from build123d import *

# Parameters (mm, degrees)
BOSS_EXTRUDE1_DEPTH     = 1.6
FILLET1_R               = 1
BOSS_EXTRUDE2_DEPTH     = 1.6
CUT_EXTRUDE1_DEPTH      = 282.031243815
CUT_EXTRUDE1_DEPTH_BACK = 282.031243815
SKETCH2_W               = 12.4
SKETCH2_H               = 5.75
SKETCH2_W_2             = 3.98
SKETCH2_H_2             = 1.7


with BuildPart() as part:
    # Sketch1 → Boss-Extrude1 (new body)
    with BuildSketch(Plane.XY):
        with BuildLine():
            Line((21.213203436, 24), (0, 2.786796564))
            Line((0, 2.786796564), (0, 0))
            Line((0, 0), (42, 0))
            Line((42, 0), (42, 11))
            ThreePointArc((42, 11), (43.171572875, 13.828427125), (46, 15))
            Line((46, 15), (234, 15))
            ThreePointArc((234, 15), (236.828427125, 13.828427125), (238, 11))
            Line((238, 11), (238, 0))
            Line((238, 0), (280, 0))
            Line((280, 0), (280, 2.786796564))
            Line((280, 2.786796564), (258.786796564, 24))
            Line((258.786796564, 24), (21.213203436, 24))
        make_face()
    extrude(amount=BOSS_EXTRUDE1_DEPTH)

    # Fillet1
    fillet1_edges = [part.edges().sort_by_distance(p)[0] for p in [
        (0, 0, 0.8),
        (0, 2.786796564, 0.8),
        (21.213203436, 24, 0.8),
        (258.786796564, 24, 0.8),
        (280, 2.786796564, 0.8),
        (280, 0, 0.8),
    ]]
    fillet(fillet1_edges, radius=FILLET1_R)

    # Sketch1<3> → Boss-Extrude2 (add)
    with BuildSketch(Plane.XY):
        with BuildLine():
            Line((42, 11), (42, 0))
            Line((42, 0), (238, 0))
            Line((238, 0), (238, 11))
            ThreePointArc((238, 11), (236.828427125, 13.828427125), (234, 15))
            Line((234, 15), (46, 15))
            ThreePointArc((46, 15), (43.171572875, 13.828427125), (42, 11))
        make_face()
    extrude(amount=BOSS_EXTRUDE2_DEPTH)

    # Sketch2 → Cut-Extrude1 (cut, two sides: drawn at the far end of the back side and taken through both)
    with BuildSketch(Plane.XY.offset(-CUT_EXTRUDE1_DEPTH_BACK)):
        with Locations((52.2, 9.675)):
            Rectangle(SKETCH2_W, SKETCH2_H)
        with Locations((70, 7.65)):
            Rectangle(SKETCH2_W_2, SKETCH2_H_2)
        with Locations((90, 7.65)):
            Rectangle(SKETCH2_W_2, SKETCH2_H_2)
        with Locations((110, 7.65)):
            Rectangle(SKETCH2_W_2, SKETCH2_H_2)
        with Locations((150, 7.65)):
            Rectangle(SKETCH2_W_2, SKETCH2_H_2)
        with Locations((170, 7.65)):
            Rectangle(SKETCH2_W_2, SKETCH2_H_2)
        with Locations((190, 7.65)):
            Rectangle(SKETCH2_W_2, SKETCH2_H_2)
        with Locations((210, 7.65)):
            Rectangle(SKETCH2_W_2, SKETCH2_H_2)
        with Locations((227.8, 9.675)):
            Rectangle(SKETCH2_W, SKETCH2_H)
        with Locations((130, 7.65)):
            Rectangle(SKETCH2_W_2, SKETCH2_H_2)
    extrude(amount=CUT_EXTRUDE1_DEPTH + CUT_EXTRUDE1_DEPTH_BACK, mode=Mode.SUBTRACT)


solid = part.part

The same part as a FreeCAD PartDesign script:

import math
import FreeCAD as App
import Part
import Sketcher

V = App.Vector
Q = App.Units.Quantity


def edges_at(feature, points):
    """Names of the edges that pass closest to the given points."""
    edges = feature.Shape.Edges
    near = lambda p: min(range(len(edges)), key=lambda i: edges[i].distToShape(Part.Vertex(*p))[0])
    return sorted({f"Edge{near(p) + 1}" for p in points})

doc = App.newDocument("Part")
params = doc.addObject("Spreadsheet::Sheet", "Params")
for row, (alias, value) in enumerate([
    ("sketch1_radius", "4 mm"),
    ("sketch1_width", "42 mm"),
    ("sketch1_width2", "188 mm"),
    ("sketch1_height", "11 mm"),
    ("sketch1_length", "30 mm"),
    ("pad1_length", "1.6 mm"),
    ("fillet_radius", "1 mm"),
    ("sketch2_radius", "4 mm"),
    ("sketch2_width", "196 mm"),
    ("sketch2_height", "11 mm"),
    ("pad2_length", "1.6 mm"),
    ("sketch3_width", "12.4 mm"),
    ("sketch3_height", "1.7 mm"),
    ("sketch3_width2", "3.98 mm"),
    ("sketch3_height2", "5.75 mm"),
], start=1):
    params.set(f"A{row}", alias)
    params.set(f"B{row}", "=" + value)
    params.setAlias(f"B{row}", alias)

body = doc.addObject("PartDesign::Body", "Body")

sketch1 = body.newObject("Sketcher::SketchObject", "Sketch")
sketch1.AttachmentSupport = (doc.getObject("XY_Plane"), [""])
sketch1.MapMode = "FlatFace"
sketch1.addGeometry(Part.LineSegment(V(21.2, 24, 0), V(0, 2.8, 0)), False)
sketch1.addGeometry(Part.LineSegment(V(0, 2.8, 0), V(0, 0, 0)), False)
sketch1.addGeometry(Part.LineSegment(V(0, 0, 0), V(42, 0, 0)), False)
sketch1.addGeometry(Part.LineSegment(V(42, 0, 0), V(42, 11, 0)), False)
sketch1.addGeometry(Part.ArcOfCircle(Part.Circle(V(46, 11, 0), V(0, 0, 1), 4), math.radians(90), math.radians(180)), False)
sketch1.addGeometry(Part.LineSegment(V(46, 15, 0), V(234, 15, 0)), False)
sketch1.addGeometry(Part.ArcOfCircle(Part.Circle(V(234, 11, 0), V(0, 0, 1), 4), math.radians(0), math.radians(90)), False)
sketch1.addGeometry(Part.LineSegment(V(238, 11, 0), V(238, 0, 0)), False)
sketch1.addGeometry(Part.LineSegment(V(238, 0, 0), V(280, 0, 0)), False)
sketch1.addGeometry(Part.LineSegment(V(280, 0, 0), V(280, 2.8, 0)), False)
sketch1.addGeometry(Part.LineSegment(V(280, 2.8, 0), V(258.8, 24, 0)), False)
sketch1.addGeometry(Part.LineSegment(V(258.8, 24, 0), V(21.2, 24, 0)), False)
sketch1.addConstraint(Sketcher.Constraint("Coincident", 0, 2, 1, 1))
sketch1.addConstraint(Sketcher.Constraint("Coincident", 1, 2, 2, 1))
sketch1.addConstraint(Sketcher.Constraint("Coincident", 2, 2, 3, 1))
sketch1.addConstraint(Sketcher.Constraint("Tangent", 3, 2, 4, 2))
sketch1.addConstraint(Sketcher.Constraint("Tangent", 4, 1, 5, 1))
sketch1.addConstraint(Sketcher.Constraint("Tangent", 5, 2, 6, 2))
sketch1.addConstraint(Sketcher.Constraint("Tangent", 6, 1, 7, 1))
sketch1.addConstraint(Sketcher.Constraint("Coincident", 7, 2, 8, 1))
sketch1.addConstraint(Sketcher.Constraint("Coincident", 8, 2, 9, 1))
sketch1.addConstraint(Sketcher.Constraint("Coincident", 9, 2, 10, 1))
sketch1.addConstraint(Sketcher.Constraint("Coincident", 10, 2, 11, 1))
sketch1.addConstraint(Sketcher.Constraint("Coincident", 11, 2, 0, 1))
sketch1.addConstraint(Sketcher.Constraint("Vertical", 1))
sketch1.addConstraint(Sketcher.Constraint("Horizontal", 2))
sketch1.addConstraint(Sketcher.Constraint("Vertical", 3))
sketch1.addConstraint(Sketcher.Constraint("Horizontal", 5))
sketch1.addConstraint(Sketcher.Constraint("Vertical", 7))
sketch1.addConstraint(Sketcher.Constraint("Horizontal", 8))
sketch1.addConstraint(Sketcher.Constraint("Vertical", 9))
sketch1.addConstraint(Sketcher.Constraint("Horizontal", 11))
sketch1.addConstraint(Sketcher.Constraint("Coincident", 1, 2, -1, 1))
sketch1.addConstraint(Sketcher.Constraint("Equal", 4, 6))
sketch1.addConstraint(Sketcher.Constraint("PointOnObject", 7, 2, -1))
sketch1.addConstraint(Sketcher.Constraint("Perpendicular", 0, 10))
sketch1.addConstraint(Sketcher.Constraint("Horizontal", 0, 2, 9, 2))
sketch1.addConstraint(Sketcher.Constraint("Equal", 2, 8))
sketch1.addConstraint(Sketcher.Constraint("Equal", 0, 10))
sketch1.addConstraint(Sketcher.Constraint("Radius", 4, Q("4 mm")))
sketch1.addConstraint(Sketcher.Constraint("DistanceX", 2, 1, 2, 2, Q("42 mm")))
sketch1.addConstraint(Sketcher.Constraint("DistanceX", 5, 1, 5, 2, Q("188 mm")))
sketch1.addConstraint(Sketcher.Constraint("DistanceY", 3, 1, 3, 2, Q("11 mm")))
sketch1.addConstraint(Sketcher.Constraint("Distance", 0, Q("30 mm")))
sketch1.addConstraint(Sketcher.Constraint("DistanceY", -1, 1, 10, 2, Q("24 mm")))
sketch1.setExpression("Constraints[27]", "Params.sketch1_radius")
sketch1.setExpression("Constraints[28]", "Params.sketch1_width")
sketch1.setExpression("Constraints[29]", "Params.sketch1_width2")
sketch1.setExpression("Constraints[30]", "Params.sketch1_height")
sketch1.setExpression("Constraints[31]", "Params.sketch1_length")
pad1 = body.newObject("PartDesign::Pad", "Pad")
pad1.Profile = sketch1
pad1.setExpression("Length", "Params.pad1_length")
doc.recompute()

fillet = body.newObject("PartDesign::Fillet", "Fillet")
fillet.Base = (pad1, edges_at(pad1, [
    (0, 0, 0.8),
    (0, 2.787, 0.8),
    (21.213, 24, 0.8),
    (258.787, 24, 0.8),
    (280, 2.787, 0.8),
    (280, 0, 0.8),
]))
fillet.setExpression("Radius", "Params.fillet_radius")

sketch2 = body.newObject("Sketcher::SketchObject", "Sketch001")
sketch2.AttachmentSupport = (doc.getObject("XY_Plane"), [""])
sketch2.MapMode = "FlatFace"
sketch2.addGeometry(Part.LineSegment(V(42, 11, 0), V(42, 0, 0)), False)
sketch2.addGeometry(Part.LineSegment(V(42, 0, 0), V(238, 0, 0)), False)
sketch2.addGeometry(Part.LineSegment(V(238, 0, 0), V(238, 11, 0)), False)
sketch2.addGeometry(Part.ArcOfCircle(Part.Circle(V(234, 11, 0), V(0, 0, 1), 4), math.radians(0), math.radians(90)), False)
sketch2.addGeometry(Part.LineSegment(V(234, 15, 0), V(46, 15, 0)), False)
sketch2.addGeometry(Part.ArcOfCircle(Part.Circle(V(46, 11, 0), V(0, 0, 1), 4), math.radians(90), math.radians(180)), False)
sketch2.addConstraint(Sketcher.Constraint("Coincident", 0, 2, 1, 1))
sketch2.addConstraint(Sketcher.Constraint("Coincident", 1, 2, 2, 1))
sketch2.addConstraint(Sketcher.Constraint("Tangent", 2, 2, 3, 1))
sketch2.addConstraint(Sketcher.Constraint("Tangent", 3, 2, 4, 1))
sketch2.addConstraint(Sketcher.Constraint("Tangent", 4, 2, 5, 1))
sketch2.addConstraint(Sketcher.Constraint("Tangent", 5, 2, 0, 1))
sketch2.addConstraint(Sketcher.Constraint("Vertical", 0))
sketch2.addConstraint(Sketcher.Constraint("Horizontal", 1))
sketch2.addConstraint(Sketcher.Constraint("Vertical", 2))
sketch2.addConstraint(Sketcher.Constraint("Horizontal", 4))
sketch2.addConstraint(Sketcher.Constraint("Equal", 3, 5))
sketch2.addConstraint(Sketcher.Constraint("PointOnObject", 0, 2, -1))
sketch2.addConstraint(Sketcher.Constraint("Radius", 3, Q("4 mm")))
sketch2.addConstraint(Sketcher.Constraint("DistanceX", 1, 1, 1, 2, Q("196 mm")))
sketch2.addConstraint(Sketcher.Constraint("DistanceY", 0, 2, 0, 1, Q("11 mm")))
sketch2.addConstraint(Sketcher.Constraint("DistanceX", -1, 1, 3, 3, Q("234 mm")))
sketch2.setExpression("Constraints[12]", "Params.sketch2_radius")
sketch2.setExpression("Constraints[13]", "Params.sketch2_width")
sketch2.setExpression("Constraints[14]", "Params.sketch2_height")
pad2 = body.newObject("PartDesign::Pad", "Pad001")
pad2.Profile = sketch2
pad2.setExpression("Length", "Params.pad2_length")

sketch3 = body.newObject("Sketcher::SketchObject", "Sketch002")
sketch3.AttachmentSupport = (doc.getObject("XY_Plane"), [""])
sketch3.MapMode = "FlatFace"
sketch3.addGeometry(Part.LineSegment(V(46, 12.6, 0), V(46, 6.8, 0)), False)
sketch3.addGeometry(Part.LineSegment(V(46, 6.8, 0), V(58.4, 6.8, 0)), False)
sketch3.addGeometry(Part.LineSegment(V(58.4, 6.8, 0), V(58.4, 12.6, 0)), False)
sketch3.addGeometry(Part.LineSegment(V(58.4, 12.6, 0), V(46, 12.6, 0)), False)
sketch3.addGeometry(Part.LineSegment(V(68, 8.5, 0), V(68, 6.8, 0)), False)
sketch3.addGeometry(Part.LineSegment(V(68, 6.8, 0), V(72, 6.8, 0)), False)
sketch3.addGeometry(Part.LineSegment(V(72, 6.8, 0), V(72, 8.5, 0)), False)
sketch3.addGeometry(Part.LineSegment(V(72, 8.5, 0), V(68, 8.5, 0)), False)
sketch3.addGeometry(Part.LineSegment(V(88, 8.5, 0), V(88, 6.8, 0)), False)
sketch3.addGeometry(Part.LineSegment(V(88, 6.8, 0), V(92, 6.8, 0)), False)
sketch3.addGeometry(Part.LineSegment(V(92, 6.8, 0), V(92, 8.5, 0)), False)
sketch3.addGeometry(Part.LineSegment(V(92, 8.5, 0), V(88, 8.5, 0)), False)
sketch3.addGeometry(Part.LineSegment(V(108, 8.5, 0), V(108, 6.8, 0)), False)
sketch3.addGeometry(Part.LineSegment(V(108, 6.8, 0), V(112, 6.8, 0)), False)
sketch3.addGeometry(Part.LineSegment(V(112, 6.8, 0), V(112, 8.5, 0)), False)
sketch3.addGeometry(Part.LineSegment(V(112, 8.5, 0), V(108, 8.5, 0)), False)
sketch3.addGeometry(Part.LineSegment(V(148, 8.5, 0), V(148, 6.8, 0)), False)
sketch3.addGeometry(Part.LineSegment(V(148, 6.8, 0), V(152, 6.8, 0)), False)
sketch3.addGeometry(Part.LineSegment(V(152, 6.8, 0), V(152, 8.5, 0)), False)
sketch3.addGeometry(Part.LineSegment(V(152, 8.5, 0), V(148, 8.5, 0)), False)
sketch3.addGeometry(Part.LineSegment(V(168, 8.5, 0), V(168, 6.8, 0)), False)
sketch3.addGeometry(Part.LineSegment(V(168, 6.8, 0), V(172, 6.8, 0)), False)
sketch3.addGeometry(Part.LineSegment(V(172, 6.8, 0), V(172, 8.5, 0)), False)
sketch3.addGeometry(Part.LineSegment(V(172, 8.5, 0), V(168, 8.5, 0)), False)
sketch3.addGeometry(Part.LineSegment(V(188, 8.5, 0), V(188, 6.8, 0)), False)
sketch3.addGeometry(Part.LineSegment(V(188, 6.8, 0), V(192, 6.8, 0)), False)
sketch3.addGeometry(Part.LineSegment(V(192, 6.8, 0), V(192, 8.5, 0)), False)
sketch3.addGeometry(Part.LineSegment(V(192, 8.5, 0), V(188, 8.5, 0)), False)
sketch3.addGeometry(Part.LineSegment(V(208, 8.5, 0), V(208, 6.8, 0)), False)
sketch3.addGeometry(Part.LineSegment(V(208, 6.8, 0), V(212, 6.8, 0)), False)
sketch3.addGeometry(Part.LineSegment(V(212, 6.8, 0), V(212, 8.5, 0)), False)
sketch3.addGeometry(Part.LineSegment(V(212, 8.5, 0), V(208, 8.5, 0)), False)
sketch3.addGeometry(Part.LineSegment(V(221.6, 12.6, 0), V(221.6, 6.8, 0)), False)
sketch3.addGeometry(Part.LineSegment(V(221.6, 6.8, 0), V(234, 6.8, 0)), False)
sketch3.addGeometry(Part.LineSegment(V(234, 6.8, 0), V(234, 12.6, 0)), False)
sketch3.addGeometry(Part.LineSegment(V(234, 12.6, 0), V(221.6, 12.6, 0)), False)
sketch3.addGeometry(Part.LineSegment(V(128, 8.5, 0), V(128, 6.8, 0)), False)
sketch3.addGeometry(Part.LineSegment(V(128, 6.8, 0), V(132, 6.8, 0)), False)
sketch3.addGeometry(Part.LineSegment(V(132, 6.8, 0), V(132, 8.5, 0)), False)
sketch3.addGeometry(Part.LineSegment(V(132, 8.5, 0), V(128, 8.5, 0)), False)
sketch3.addConstraint(Sketcher.Constraint("Coincident", 0, 2, 1, 1))
sketch3.addConstraint(Sketcher.Constraint("Coincident", 1, 2, 2, 1))
sketch3.addConstraint(Sketcher.Constraint("Coincident", 2, 2, 3, 1))
sketch3.addConstraint(Sketcher.Constraint("Coincident", 3, 2, 0, 1))
sketch3.addConstraint(Sketcher.Constraint("Coincident", 4, 2, 5, 1))
sketch3.addConstraint(Sketcher.Constraint("Coincident", 5, 2, 6, 1))
sketch3.addConstraint(Sketcher.Constraint("Coincident", 6, 2, 7, 1))
sketch3.addConstraint(Sketcher.Constraint("Coincident", 7, 2, 4, 1))
sketch3.addConstraint(Sketcher.Constraint("Coincident", 8, 2, 9, 1))
sketch3.addConstraint(Sketcher.Constraint("Coincident", 9, 2, 10, 1))
sketch3.addConstraint(Sketcher.Constraint("Coincident", 10, 2, 11, 1))
sketch3.addConstraint(Sketcher.Constraint("Coincident", 11, 2, 8, 1))
sketch3.addConstraint(Sketcher.Constraint("Coincident", 12, 2, 13, 1))
sketch3.addConstraint(Sketcher.Constraint("Coincident", 13, 2, 14, 1))
sketch3.addConstraint(Sketcher.Constraint("Coincident", 14, 2, 15, 1))
sketch3.addConstraint(Sketcher.Constraint("Coincident", 15, 2, 12, 1))
sketch3.addConstraint(Sketcher.Constraint("Coincident", 16, 2, 17, 1))
sketch3.addConstraint(Sketcher.Constraint("Coincident", 17, 2, 18, 1))
sketch3.addConstraint(Sketcher.Constraint("Coincident", 18, 2, 19, 1))
sketch3.addConstraint(Sketcher.Constraint("Coincident", 19, 2, 16, 1))
sketch3.addConstraint(Sketcher.Constraint("Coincident", 20, 2, 21, 1))
sketch3.addConstraint(Sketcher.Constraint("Coincident", 21, 2, 22, 1))
sketch3.addConstraint(Sketcher.Constraint("Coincident", 22, 2, 23, 1))
sketch3.addConstraint(Sketcher.Constraint("Coincident", 23, 2, 20, 1))
sketch3.addConstraint(Sketcher.Constraint("Coincident", 24, 2, 25, 1))
sketch3.addConstraint(Sketcher.Constraint("Coincident", 25, 2, 26, 1))
sketch3.addConstraint(Sketcher.Constraint("Coincident", 26, 2, 27, 1))
sketch3.addConstraint(Sketcher.Constraint("Coincident", 27, 2, 24, 1))
sketch3.addConstraint(Sketcher.Constraint("Coincident", 28, 2, 29, 1))
sketch3.addConstraint(Sketcher.Constraint("Coincident", 29, 2, 30, 1))
sketch3.addConstraint(Sketcher.Constraint("Coincident", 30, 2, 31, 1))
sketch3.addConstraint(Sketcher.Constraint("Coincident", 31, 2, 28, 1))
sketch3.addConstraint(Sketcher.Constraint("Coincident", 32, 2, 33, 1))
sketch3.addConstraint(Sketcher.Constraint("Coincident", 33, 2, 34, 1))
sketch3.addConstraint(Sketcher.Constraint("Coincident", 34, 2, 35, 1))
sketch3.addConstraint(Sketcher.Constraint("Coincident", 35, 2, 32, 1))
sketch3.addConstraint(Sketcher.Constraint("Coincident", 36, 2, 37, 1))
sketch3.addConstraint(Sketcher.Constraint("Coincident", 37, 2, 38, 1))
sketch3.addConstraint(Sketcher.Constraint("Coincident", 38, 2, 39, 1))
sketch3.addConstraint(Sketcher.Constraint("Coincident", 39, 2, 36, 1))
sketch3.addConstraint(Sketcher.Constraint("Vertical", 0))
sketch3.addConstraint(Sketcher.Constraint("Horizontal", 1))
sketch3.addConstraint(Sketcher.Constraint("Vertical", 2))
sketch3.addConstraint(Sketcher.Constraint("Horizontal", 3))
sketch3.addConstraint(Sketcher.Constraint("Vertical", 4))
sketch3.addConstraint(Sketcher.Constraint("Horizontal", 5))
sketch3.addConstraint(Sketcher.Constraint("Vertical", 6))
sketch3.addConstraint(Sketcher.Constraint("Horizontal", 7))
sketch3.addConstraint(Sketcher.Constraint("Vertical", 8))
sketch3.addConstraint(Sketcher.Constraint("Horizontal", 9))
sketch3.addConstraint(Sketcher.Constraint("Vertical", 10))
sketch3.addConstraint(Sketcher.Constraint("Horizontal", 11))
sketch3.addConstraint(Sketcher.Constraint("Vertical", 12))
sketch3.addConstraint(Sketcher.Constraint("Horizontal", 13))
sketch3.addConstraint(Sketcher.Constraint("Vertical", 14))
sketch3.addConstraint(Sketcher.Constraint("Horizontal", 15))
sketch3.addConstraint(Sketcher.Constraint("Vertical", 16))
sketch3.addConstraint(Sketcher.Constraint("Horizontal", 17))
sketch3.addConstraint(Sketcher.Constraint("Vertical", 18))
sketch3.addConstraint(Sketcher.Constraint("Horizontal", 19))
sketch3.addConstraint(Sketcher.Constraint("Vertical", 20))
sketch3.addConstraint(Sketcher.Constraint("Horizontal", 21))
sketch3.addConstraint(Sketcher.Constraint("Vertical", 22))
sketch3.addConstraint(Sketcher.Constraint("Horizontal", 23))
sketch3.addConstraint(Sketcher.Constraint("Vertical", 24))
sketch3.addConstraint(Sketcher.Constraint("Horizontal", 25))
sketch3.addConstraint(Sketcher.Constraint("Vertical", 26))
sketch3.addConstraint(Sketcher.Constraint("Horizontal", 27))
sketch3.addConstraint(Sketcher.Constraint("Vertical", 28))
sketch3.addConstraint(Sketcher.Constraint("Horizontal", 29))
sketch3.addConstraint(Sketcher.Constraint("Vertical", 30))
sketch3.addConstraint(Sketcher.Constraint("Horizontal", 31))
sketch3.addConstraint(Sketcher.Constraint("Vertical", 32))
sketch3.addConstraint(Sketcher.Constraint("Horizontal", 33))
sketch3.addConstraint(Sketcher.Constraint("Vertical", 34))
sketch3.addConstraint(Sketcher.Constraint("Horizontal", 35))
sketch3.addConstraint(Sketcher.Constraint("Vertical", 36))
sketch3.addConstraint(Sketcher.Constraint("Horizontal", 37))
sketch3.addConstraint(Sketcher.Constraint("Vertical", 38))
sketch3.addConstraint(Sketcher.Constraint("Horizontal", 39))
sketch3.addConstraint(Sketcher.Constraint("Horizontal", 1, 2, 4, 2))
sketch3.addConstraint(Sketcher.Constraint("Horizontal", 5, 2, 8, 2))
sketch3.addConstraint(Sketcher.Constraint("Horizontal", 7, 2, 10, 2))
sketch3.addConstraint(Sketcher.Constraint("Horizontal", 9, 2, 12, 2))
sketch3.addConstraint(Sketcher.Constraint("Horizontal", 11, 2, 14, 2))
sketch3.addConstraint(Sketcher.Constraint("Horizontal", 13, 2, 16, 2))
sketch3.addConstraint(Sketcher.Constraint("Horizontal", 15, 2, 18, 2))
sketch3.addConstraint(Sketcher.Constraint("Horizontal", 17, 2, 20, 2))
sketch3.addConstraint(Sketcher.Constraint("Horizontal", 19, 2, 22, 2))
sketch3.addConstraint(Sketcher.Constraint("Horizontal", 21, 2, 24, 2))
sketch3.addConstraint(Sketcher.Constraint("Horizontal", 23, 2, 26, 2))
sketch3.addConstraint(Sketcher.Constraint("Horizontal", 25, 2, 28, 2))
sketch3.addConstraint(Sketcher.Constraint("Horizontal", 27, 2, 30, 2))
sketch3.addConstraint(Sketcher.Constraint("Horizontal", 29, 2, 32, 2))
sketch3.addConstraint(Sketcher.Constraint("Horizontal", 3, 2, 34, 2))
sketch3.addConstraint(Sketcher.Constraint("Horizontal", 33, 2, 36, 2))
sketch3.addConstraint(Sketcher.Constraint("Horizontal", 31, 2, 38, 2))
sketch3.addConstraint(Sketcher.Constraint("Equal", 7, 9))
sketch3.addConstraint(Sketcher.Constraint("Equal", 11, 13))
sketch3.addConstraint(Sketcher.Constraint("Equal", 15, 17))
sketch3.addConstraint(Sketcher.Constraint("Equal", 19, 21))
sketch3.addConstraint(Sketcher.Constraint("Equal", 23, 25))
sketch3.addConstraint(Sketcher.Constraint("Equal", 27, 29))
sketch3.addConstraint(Sketcher.Constraint("Equal", 3, 33))
sketch3.addConstraint(Sketcher.Constraint("Equal", 31, 37))
sketch3.addConstraint(Sketcher.Constraint("DistanceX", 1, 1, 1, 2, Q("12.4 mm")))
sketch3.addConstraint(Sketcher.Constraint("DistanceY", 4, 2, 4, 1, Q("1.7 mm")))
sketch3.addConstraint(Sketcher.Constraint("DistanceX", -1, 1, 0, 2, Q("46 mm")))
sketch3.addConstraint(Sketcher.Constraint("DistanceX", -1, 1, 33, 2, Q("234 mm")))
sketch3.addConstraint(Sketcher.Constraint("DistanceX", 4, 2, 8, 2, Q("20 mm")))
sketch3.addConstraint(Sketcher.Constraint("DistanceX", 8, 2, 12, 2, Q("20 mm")))
sketch3.addConstraint(Sketcher.Constraint("DistanceX", 12, 2, 16, 2, Q("40 mm")))
sketch3.addConstraint(Sketcher.Constraint("DistanceX", 16, 2, 20, 2, Q("20 mm")))
sketch3.addConstraint(Sketcher.Constraint("DistanceX", 20, 2, 24, 2, Q("20 mm")))
sketch3.addConstraint(Sketcher.Constraint("DistanceX", 24, 2, 28, 2, Q("20 mm")))
sketch3.addConstraint(Sketcher.Constraint("DistanceX", 12, 2, 36, 2, Q("20 mm")))
sketch3.addConstraint(Sketcher.Constraint("DistanceX", 5, 1, 5, 2, Q("3.98 mm")))
sketch3.addConstraint(Sketcher.Constraint("DistanceY", 0, 2, 0, 1, Q("5.75 mm")))
sketch3.addConstraint(Sketcher.Constraint("DistanceY", -1, 1, 0, 2, Q("6.8 mm")))
sketch3.addConstraint(Sketcher.Constraint("DistanceX", -1, 1, 4, 2, Q("68.01 mm")))
sketch3.setExpression("Constraints[105]", "Params.sketch3_width")
sketch3.setExpression("Constraints[106]", "Params.sketch3_height")
sketch3.setExpression("Constraints[116]", "Params.sketch3_width2")
sketch3.setExpression("Constraints[117]", "Params.sketch3_height2")
pocket1 = body.newObject("PartDesign::Pocket", "Pocket")
pocket1.Profile = sketch3
pocket1.Type = "ThroughAll"
pocket1.Midplane = True

doc.recompute()
